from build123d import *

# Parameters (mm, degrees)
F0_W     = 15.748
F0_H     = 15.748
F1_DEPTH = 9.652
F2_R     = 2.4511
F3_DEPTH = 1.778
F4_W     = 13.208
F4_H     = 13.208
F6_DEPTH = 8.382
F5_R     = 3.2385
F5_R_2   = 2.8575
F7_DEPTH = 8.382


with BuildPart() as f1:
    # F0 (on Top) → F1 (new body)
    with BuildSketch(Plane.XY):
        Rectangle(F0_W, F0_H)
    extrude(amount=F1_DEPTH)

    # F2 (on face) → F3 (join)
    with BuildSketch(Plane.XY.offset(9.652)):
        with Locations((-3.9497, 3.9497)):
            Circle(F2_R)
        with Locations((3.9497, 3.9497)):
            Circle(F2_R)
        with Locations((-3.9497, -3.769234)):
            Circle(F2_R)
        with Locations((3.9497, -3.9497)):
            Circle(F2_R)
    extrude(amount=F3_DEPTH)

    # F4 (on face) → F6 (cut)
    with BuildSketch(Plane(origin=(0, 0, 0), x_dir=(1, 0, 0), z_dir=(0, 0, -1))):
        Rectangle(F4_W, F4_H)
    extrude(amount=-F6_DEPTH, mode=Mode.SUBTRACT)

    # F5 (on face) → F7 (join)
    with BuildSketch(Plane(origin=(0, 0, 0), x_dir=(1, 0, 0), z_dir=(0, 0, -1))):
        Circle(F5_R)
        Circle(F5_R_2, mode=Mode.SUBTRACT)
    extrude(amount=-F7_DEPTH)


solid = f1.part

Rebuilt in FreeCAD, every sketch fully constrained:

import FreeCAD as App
import Part
import Sketcher
from FreeCAD import Vector
Q = App.Units.Quantity

doc = App.newDocument("Part")
body = doc.addObject("PartDesign::Body", "Body")

# Sketch on XY plane
sketch1 = body.newObject("Sketcher::SketchObject", "Sketch")
sketch1.AttachmentSupport = (doc.getObject("XY_Plane"), [""])
sketch1.MapMode = "FlatFace"
sketch1.addGeometry([
    Part.LineSegment(Vector(-8, 8, 0), Vector(-8, -8, 0)),
    Part.LineSegment(Vector(-8, -8, 0), Vector(8, -8, 0)),
    Part.LineSegment(Vector(8, -8, 0), Vector(8, 8, 0)),
    Part.LineSegment(Vector(8, 8, 0), Vector(-8, 8, 0)),
], False)
sketch1.addConstraint([
    Sketcher.Constraint("Coincident", 0, 2, 1, 1),
    Sketcher.Constraint("Coincident", 1, 2, 2, 1),
    Sketcher.Constraint("Coincident", 2, 2, 3, 1),
    Sketcher.Constraint("Coincident", 3, 2, 0, 1),
    Sketcher.Constraint("Vertical", 0),
    Sketcher.Constraint("Horizontal", 1),
    Sketcher.Constraint("Vertical", 2),
    Sketcher.Constraint("Horizontal", 3),
    Sketcher.Constraint("Symmetric", 0, 2, 2, 2, -1, 1),
    Sketcher.Constraint("Equal", 3, 0),
    Sketcher.Constraint("DistanceX", 1, 1, 1, 2, Q("0.62 in")),
])
pad1 = body.newObject("PartDesign::Pad", "Pad")
pad1.Profile = sketch1
pad1.Length = Q("0.38 in")

# Sketch on XY plane
sketch2 = body.newObject("Sketcher::SketchObject", "Sketch001")
sketch2.AttachmentSupport = (doc.getObject("XY_Plane"), [""])
sketch2.MapMode = "FlatFace"
sketch2.AttachmentOffset = App.Placement(Vector(0, 0, 0.38 * 25.4), App.Rotation())
sketch2.addGeometry([
    Part.Circle(Vector(-3.9, 3.9, 0), Vector(0, 0, 1), 2.5),
    Part.Circle(Vector(3.9, 3.9, 0), Vector(0, 0, 1), 2.5),
    Part.Circle(Vector(-3.9, -3.8, 0), Vector(0, 0, 1), 2.5),
    Part.Circle(Vector(3.9, -3.9, 0), Vector(0, 0, 1), 2.5),
], False)
sketch2.addConstraint([
    Sketcher.Constraint("Equal", 0, 1),
    Sketcher.Constraint("Equal", 1, 2),
    Sketcher.Constraint("Equal", 2, 3),
    Sketcher.Constraint("Symmetric", 0, 3, 3, 3, -1, 1),
    Sketcher.Constraint("Symmetric", 0, 3, 1, 3, -2),
    Sketcher.Constraint("Vertical", 0, 3, 2, 3),
    Sketcher.Constraint("Diameter", 0, Q("0.193 in")),
    Sketcher.Constraint("DistanceX", 0, 3, 1, 3, Q("0.311 in")),
    Sketcher.Constraint("DistanceY", 3, 3, 1, 3, Q("0.311 in")),
    Sketcher.Constraint("DistanceY", 2, 3, -1, 1, Q("3.769234 mm")),
])
pad2 = body.newObject("PartDesign::Pad", "Pad001")
pad2.Profile = sketch2
pad2.Length = Q("0.07 in")

# Sketch on XY plane
sketch3 = body.newObject("Sketcher::SketchObject", "Sketch002")
sketch3.AttachmentSupport = (doc.getObject("XY_Plane"), [""])
sketch3.MapMode = "FlatFace"
sketch3.addGeometry([
    Part.LineSegment(Vector(-7, -7, 0), Vector(-7, 7, 0)),
    Part.LineSegment(Vector(-7, 7, 0), Vector(7, 7, 0)),
    Part.LineSegment(Vector(7, 7, 0), Vector(7, -7, 0)),
    Part.LineSegment(Vector(7, -7, 0), Vector(-7, -7, 0)),
], False)
sketch3.addConstraint([
    Sketcher.Constraint("Coincident", 0, 2, 1, 1),
    Sketcher.Constraint("Coincident", 1, 2, 2, 1),
    Sketcher.Constraint("Coincident", 2, 2, 3, 1),
    Sketcher.Constraint("Coincident", 3, 2, 0, 1),
    Sketcher.Constraint("Vertical", 0),
    Sketcher.Constraint("Horizontal", 1),
    Sketcher.Constraint("Vertical", 2),
    Sketcher.Constraint("Horizontal", 3),
    Sketcher.Constraint("Symmetric", 0, 2, 2, 2, -1, 1),
    Sketcher.Constraint("Equal", 3, 0),
    Sketcher.Constraint("DistanceX", 1, 1, 1, 2, Q("0.52 in")),
])
pocket1 = body.newObject("PartDesign::Pocket", "Pocket")
pocket1.Profile = sketch3
pocket1.Length = Q("0.33 in")
pocket1.Reversed = True

# Sketch on XY plane
sketch4 = body.newObject("Sketcher::SketchObject", "Sketch003")
sketch4.AttachmentSupport = (doc.getObject("XY_Plane"), [""])
sketch4.MapMode = "FlatFace"
sketch4.addGeometry([
    Part.Circle(Vector(0, 0, 0), Vector(0, 0, 1), 3.2),
    Part.Circle(Vector(0, 0, 0), Vector(0, 0, 1), 2.9),
], False)
sketch4.addConstraint([
    Sketcher.Constraint("Coincident", 0, 3, -1, 1),
    Sketcher.Constraint("Coincident", 1, 3, -1, 1),
    Sketcher.Constraint("Diameter", 0, Q("0.255 in")),
    Sketcher.Constraint("Diameter", 1, Q("0.225 in")),
])
pad3 = body.newObject("PartDesign::Pad", "Pad002")
pad3.Profile = sketch4
pad3.Length = Q("0.33 in")

doc.recompute()
